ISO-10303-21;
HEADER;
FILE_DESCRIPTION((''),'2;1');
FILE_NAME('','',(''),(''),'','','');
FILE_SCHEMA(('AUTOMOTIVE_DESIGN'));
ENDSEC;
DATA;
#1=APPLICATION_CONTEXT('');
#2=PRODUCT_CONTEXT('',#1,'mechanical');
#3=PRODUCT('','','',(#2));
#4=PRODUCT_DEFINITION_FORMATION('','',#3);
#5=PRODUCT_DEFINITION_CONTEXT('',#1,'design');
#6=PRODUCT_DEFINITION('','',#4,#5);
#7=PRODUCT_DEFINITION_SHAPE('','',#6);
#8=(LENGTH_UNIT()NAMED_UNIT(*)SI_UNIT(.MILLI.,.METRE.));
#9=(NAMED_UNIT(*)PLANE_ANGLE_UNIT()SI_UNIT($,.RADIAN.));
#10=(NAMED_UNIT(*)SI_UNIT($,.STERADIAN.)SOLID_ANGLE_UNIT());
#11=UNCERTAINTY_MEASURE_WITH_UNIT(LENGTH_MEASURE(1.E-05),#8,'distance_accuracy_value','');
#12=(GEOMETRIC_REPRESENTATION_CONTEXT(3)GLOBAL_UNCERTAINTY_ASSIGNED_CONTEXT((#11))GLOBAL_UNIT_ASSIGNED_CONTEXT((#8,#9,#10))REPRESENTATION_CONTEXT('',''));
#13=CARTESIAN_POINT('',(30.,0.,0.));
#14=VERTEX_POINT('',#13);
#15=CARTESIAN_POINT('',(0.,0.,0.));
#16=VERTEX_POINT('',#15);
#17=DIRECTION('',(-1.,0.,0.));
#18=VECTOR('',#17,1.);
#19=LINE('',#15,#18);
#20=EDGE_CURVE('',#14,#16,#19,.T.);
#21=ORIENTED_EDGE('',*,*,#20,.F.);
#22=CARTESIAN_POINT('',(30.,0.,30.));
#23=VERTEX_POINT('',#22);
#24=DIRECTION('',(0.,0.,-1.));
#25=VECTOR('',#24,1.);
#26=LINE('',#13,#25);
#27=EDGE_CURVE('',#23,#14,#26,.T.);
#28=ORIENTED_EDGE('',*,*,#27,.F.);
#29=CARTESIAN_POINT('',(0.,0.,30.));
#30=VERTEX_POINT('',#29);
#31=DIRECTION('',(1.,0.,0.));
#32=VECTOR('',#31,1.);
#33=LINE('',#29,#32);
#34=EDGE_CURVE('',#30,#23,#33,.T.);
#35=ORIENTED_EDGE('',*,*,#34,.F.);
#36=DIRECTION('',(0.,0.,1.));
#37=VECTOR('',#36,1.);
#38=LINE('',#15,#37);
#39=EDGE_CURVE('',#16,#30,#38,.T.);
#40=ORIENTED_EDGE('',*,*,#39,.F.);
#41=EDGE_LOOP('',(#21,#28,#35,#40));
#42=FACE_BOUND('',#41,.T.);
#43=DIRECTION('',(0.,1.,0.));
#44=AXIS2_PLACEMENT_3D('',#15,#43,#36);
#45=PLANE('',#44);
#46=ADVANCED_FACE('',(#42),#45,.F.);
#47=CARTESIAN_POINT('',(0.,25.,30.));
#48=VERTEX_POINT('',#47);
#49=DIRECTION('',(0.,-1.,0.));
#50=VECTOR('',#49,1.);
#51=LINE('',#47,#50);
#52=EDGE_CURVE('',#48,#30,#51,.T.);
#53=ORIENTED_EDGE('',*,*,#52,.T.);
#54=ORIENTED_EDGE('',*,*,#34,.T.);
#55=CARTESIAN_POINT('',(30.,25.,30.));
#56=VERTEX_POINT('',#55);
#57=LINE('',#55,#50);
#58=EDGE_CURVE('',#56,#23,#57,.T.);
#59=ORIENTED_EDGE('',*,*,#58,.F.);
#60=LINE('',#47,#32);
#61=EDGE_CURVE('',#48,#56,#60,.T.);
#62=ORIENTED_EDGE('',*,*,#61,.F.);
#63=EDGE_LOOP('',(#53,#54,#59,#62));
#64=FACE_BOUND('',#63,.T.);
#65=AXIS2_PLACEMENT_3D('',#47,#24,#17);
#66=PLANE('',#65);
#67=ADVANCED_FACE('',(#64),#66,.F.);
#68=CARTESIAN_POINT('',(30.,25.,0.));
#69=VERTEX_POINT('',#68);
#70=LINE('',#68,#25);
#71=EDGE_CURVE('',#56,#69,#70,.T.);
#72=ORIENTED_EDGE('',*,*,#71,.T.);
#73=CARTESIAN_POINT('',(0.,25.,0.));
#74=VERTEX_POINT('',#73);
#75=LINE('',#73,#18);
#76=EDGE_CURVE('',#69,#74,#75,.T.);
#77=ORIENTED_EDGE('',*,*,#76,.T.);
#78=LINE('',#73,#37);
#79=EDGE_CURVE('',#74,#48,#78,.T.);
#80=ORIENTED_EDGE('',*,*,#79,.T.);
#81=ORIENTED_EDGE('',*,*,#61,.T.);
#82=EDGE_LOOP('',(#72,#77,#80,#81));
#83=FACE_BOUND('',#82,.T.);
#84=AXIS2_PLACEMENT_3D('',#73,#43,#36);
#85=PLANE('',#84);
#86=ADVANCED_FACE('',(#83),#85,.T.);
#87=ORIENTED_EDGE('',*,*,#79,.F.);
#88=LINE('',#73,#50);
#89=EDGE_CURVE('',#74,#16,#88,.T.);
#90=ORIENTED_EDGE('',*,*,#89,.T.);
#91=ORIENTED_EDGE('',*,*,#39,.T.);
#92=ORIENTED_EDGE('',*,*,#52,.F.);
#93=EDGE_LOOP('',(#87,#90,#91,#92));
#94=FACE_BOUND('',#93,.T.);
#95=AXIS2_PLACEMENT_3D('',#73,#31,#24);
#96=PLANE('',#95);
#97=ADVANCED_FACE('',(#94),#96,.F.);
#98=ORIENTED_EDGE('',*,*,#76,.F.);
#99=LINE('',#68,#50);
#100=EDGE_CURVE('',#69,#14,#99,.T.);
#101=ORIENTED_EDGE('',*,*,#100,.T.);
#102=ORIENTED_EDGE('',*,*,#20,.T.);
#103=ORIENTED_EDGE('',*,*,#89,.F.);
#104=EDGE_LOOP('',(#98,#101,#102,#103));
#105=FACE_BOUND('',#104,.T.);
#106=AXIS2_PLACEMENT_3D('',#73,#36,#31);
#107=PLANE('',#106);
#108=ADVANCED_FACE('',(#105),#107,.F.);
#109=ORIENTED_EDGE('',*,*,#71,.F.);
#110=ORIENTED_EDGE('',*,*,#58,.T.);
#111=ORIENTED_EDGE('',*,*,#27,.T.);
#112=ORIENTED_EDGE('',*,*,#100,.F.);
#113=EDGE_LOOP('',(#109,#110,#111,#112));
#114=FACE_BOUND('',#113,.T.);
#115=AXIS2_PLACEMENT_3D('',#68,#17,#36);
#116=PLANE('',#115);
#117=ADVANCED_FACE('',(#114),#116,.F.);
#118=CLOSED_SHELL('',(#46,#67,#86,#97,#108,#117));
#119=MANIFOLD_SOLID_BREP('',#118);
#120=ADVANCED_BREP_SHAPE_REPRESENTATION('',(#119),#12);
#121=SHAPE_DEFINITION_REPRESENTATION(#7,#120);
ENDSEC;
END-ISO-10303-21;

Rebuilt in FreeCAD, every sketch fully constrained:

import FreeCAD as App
import Part
import Sketcher

V = App.Vector
Q = App.Units.Quantity


def add_polygon(sketch, points):
    """Adds a closed chain of lines whose ends are joined by coincident constraints."""
    first, n = sketch.GeometryCount, len(points)
    for a, b in zip(points, points[1:] + points[:1]):
        sketch.addGeometry(Part.LineSegment(App.Vector(*a, 0), App.Vector(*b, 0)), False)
    for i in range(n):
        sketch.addConstraint(Sketcher.Constraint("Coincident", first + i, 2, first + (i + 1) % n, 1))

doc = App.newDocument("Part")
body = doc.addObject("PartDesign::Body", "Body")

sketch1 = body.newObject("Sketcher::SketchObject", "Sketch")
sketch1.AttachmentSupport = (doc.getObject("XZ_Plane"), [""])
sketch1.MapMode = "FlatFace"
add_polygon(sketch1, [(0, 0), (0, 30), (30, 30), (30, 0)])
sketch1.addConstraint(Sketcher.Constraint("Vertical", 0))
sketch1.addConstraint(Sketcher.Constraint("Horizontal", 1))
sketch1.addConstraint(Sketcher.Constraint("Vertical", 2))
sketch1.addConstraint(Sketcher.Constraint("Horizontal", 3))
sketch1.addConstraint(Sketcher.Constraint("Coincident", 3, 2, -1, 1))
sketch1.addConstraint(Sketcher.Constraint("Equal", 3, 0))
sketch1.addConstraint(Sketcher.Constraint("DistanceX", 1, 1, 1, 2, Q("30 mm")))
pad1 = body.newObject("PartDesign::Pad", "Pad")
pad1.Profile = sketch1
pad1.Length = 25
pad1.Reversed = True

doc.recompute()
